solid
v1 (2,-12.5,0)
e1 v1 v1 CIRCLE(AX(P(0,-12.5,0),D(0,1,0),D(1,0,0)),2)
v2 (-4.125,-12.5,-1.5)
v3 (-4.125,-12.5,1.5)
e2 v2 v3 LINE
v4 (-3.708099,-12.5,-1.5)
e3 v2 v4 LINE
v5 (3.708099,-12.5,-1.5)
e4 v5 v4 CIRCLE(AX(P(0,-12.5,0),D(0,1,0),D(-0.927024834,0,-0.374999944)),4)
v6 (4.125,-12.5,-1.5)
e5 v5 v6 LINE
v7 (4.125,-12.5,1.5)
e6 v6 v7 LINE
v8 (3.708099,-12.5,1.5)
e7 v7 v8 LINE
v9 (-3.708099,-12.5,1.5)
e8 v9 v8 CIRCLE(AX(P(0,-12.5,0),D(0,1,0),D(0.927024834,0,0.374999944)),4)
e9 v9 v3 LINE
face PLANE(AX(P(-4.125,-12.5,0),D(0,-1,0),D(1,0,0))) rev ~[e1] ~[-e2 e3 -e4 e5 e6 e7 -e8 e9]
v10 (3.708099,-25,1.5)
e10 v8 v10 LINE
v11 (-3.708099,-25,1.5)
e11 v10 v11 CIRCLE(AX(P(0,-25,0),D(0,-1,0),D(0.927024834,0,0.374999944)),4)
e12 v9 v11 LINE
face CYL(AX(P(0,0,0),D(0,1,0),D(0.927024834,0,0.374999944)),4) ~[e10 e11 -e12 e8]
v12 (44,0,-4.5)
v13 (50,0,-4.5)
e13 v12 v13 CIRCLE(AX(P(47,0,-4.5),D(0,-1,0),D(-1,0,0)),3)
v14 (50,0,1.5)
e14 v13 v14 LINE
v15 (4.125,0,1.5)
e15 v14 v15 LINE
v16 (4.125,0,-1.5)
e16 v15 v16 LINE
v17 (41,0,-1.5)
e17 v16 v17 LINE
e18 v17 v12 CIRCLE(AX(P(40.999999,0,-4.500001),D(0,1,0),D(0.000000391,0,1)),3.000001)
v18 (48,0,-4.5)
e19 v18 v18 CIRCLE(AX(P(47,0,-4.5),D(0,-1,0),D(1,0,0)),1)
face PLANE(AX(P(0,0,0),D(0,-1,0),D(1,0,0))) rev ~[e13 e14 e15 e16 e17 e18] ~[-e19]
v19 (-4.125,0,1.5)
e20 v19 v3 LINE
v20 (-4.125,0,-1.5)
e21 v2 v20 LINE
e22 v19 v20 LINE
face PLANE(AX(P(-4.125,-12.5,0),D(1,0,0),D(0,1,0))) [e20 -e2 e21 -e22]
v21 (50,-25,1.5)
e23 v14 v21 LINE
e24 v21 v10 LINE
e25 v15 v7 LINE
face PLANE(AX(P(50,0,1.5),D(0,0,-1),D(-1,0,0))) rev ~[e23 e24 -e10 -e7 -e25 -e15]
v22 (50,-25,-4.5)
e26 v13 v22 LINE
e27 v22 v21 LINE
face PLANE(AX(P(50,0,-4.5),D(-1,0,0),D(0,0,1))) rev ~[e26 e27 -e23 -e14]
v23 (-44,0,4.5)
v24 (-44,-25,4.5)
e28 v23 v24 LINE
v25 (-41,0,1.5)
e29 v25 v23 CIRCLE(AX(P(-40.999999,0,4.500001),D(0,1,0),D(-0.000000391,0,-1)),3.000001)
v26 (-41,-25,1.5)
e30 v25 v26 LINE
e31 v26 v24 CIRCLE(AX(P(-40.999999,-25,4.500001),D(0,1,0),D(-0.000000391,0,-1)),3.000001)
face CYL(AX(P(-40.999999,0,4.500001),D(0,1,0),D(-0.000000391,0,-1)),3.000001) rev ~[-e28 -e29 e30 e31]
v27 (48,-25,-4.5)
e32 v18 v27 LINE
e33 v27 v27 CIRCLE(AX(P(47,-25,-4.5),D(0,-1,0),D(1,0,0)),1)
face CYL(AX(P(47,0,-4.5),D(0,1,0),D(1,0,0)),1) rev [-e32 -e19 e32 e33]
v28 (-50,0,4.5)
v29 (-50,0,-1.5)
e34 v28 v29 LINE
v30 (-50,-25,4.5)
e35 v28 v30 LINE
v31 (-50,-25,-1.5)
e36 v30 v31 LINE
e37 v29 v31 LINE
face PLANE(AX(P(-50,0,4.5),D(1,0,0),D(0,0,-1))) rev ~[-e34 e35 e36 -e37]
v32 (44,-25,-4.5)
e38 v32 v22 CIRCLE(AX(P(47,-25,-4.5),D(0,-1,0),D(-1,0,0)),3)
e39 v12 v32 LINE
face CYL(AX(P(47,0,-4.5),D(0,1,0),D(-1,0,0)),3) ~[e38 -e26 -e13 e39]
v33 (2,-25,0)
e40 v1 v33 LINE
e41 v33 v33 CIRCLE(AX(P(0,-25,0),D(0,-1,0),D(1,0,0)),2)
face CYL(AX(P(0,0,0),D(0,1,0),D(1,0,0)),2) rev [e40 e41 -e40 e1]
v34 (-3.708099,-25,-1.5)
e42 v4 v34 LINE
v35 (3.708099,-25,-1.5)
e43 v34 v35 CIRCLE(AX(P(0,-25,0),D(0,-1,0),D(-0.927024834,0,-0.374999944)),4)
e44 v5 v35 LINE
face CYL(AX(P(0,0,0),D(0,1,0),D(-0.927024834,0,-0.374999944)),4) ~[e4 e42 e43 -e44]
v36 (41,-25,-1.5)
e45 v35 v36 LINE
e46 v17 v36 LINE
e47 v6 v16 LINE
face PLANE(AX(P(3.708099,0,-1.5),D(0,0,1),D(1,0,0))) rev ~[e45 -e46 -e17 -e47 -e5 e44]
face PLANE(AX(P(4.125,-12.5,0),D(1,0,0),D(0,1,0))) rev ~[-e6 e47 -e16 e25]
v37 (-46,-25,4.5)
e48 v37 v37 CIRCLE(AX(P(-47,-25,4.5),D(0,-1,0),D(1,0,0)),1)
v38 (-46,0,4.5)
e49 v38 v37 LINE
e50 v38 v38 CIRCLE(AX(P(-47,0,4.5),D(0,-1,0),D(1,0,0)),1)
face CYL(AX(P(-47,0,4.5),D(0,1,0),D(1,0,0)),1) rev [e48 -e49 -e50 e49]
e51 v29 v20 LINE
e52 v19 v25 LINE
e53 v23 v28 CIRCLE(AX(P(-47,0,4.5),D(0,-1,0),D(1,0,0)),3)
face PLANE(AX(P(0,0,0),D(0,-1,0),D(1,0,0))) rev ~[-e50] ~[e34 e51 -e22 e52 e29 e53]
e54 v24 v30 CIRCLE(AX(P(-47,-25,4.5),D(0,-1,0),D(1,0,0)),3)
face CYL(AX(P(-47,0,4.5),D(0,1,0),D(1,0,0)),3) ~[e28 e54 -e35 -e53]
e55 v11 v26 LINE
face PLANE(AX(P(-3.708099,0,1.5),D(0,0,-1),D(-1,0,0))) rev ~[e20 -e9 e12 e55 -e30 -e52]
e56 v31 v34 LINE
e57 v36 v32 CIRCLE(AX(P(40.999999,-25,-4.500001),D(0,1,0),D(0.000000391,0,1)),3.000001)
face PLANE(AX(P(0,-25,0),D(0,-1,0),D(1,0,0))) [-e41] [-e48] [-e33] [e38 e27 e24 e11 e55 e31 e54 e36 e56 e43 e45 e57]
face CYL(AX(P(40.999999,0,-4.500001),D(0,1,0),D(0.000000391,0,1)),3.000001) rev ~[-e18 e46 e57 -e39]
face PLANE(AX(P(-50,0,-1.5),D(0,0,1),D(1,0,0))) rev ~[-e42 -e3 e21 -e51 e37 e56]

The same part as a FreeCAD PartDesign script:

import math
import FreeCAD as App
import Part
import Sketcher


def add_polygon(sketch, points):
    """Adds a closed chain of lines whose ends are joined by coincident constraints."""
    first, n = sketch.GeometryCount, len(points)
    for a, b in zip(points, points[1:] + points[:1]):
        sketch.addGeometry(Part.LineSegment(App.Vector(*a, 0), App.Vector(*b, 0)), False)
    for i in range(n):
        sketch.addConstraint(Sketcher.Constraint("Coincident", first + i, 2, first + (i + 1) % n, 1))

doc = App.newDocument("Part")
body = doc.addObject("PartDesign::Body", "Body")

# Sketch on XZ plane
sketch1 = body.newObject("Sketcher::SketchObject", "Sketch")
sketch1.AttachmentSupport = (doc.getObject("XZ_Plane"), [""])
sketch1.MapMode = "FlatFace"
sketch1.addGeometry([
    Part.LineSegment(App.Vector(-3.7, 1.5, 0), App.Vector(-41, 1.5, 0)),  # 0
    Part.ArcOfCircle(Part.Circle(App.Vector(-41, 4.5, 0), App.Vector(0, 0, 1), 3), math.radians(-180), math.radians(-90)),  # 1
    Part.ArcOfCircle(Part.Circle(App.Vector(-47, 4.5, 0), App.Vector(0, 0, 1), 3), math.radians(0), math.radians(180)),  # 2
    Part.LineSegment(App.Vector(-50, 4.5, 0), App.Vector(-50, -1.5, 0)),  # 3
    Part.LineSegment(App.Vector(-50, -1.5, 0), App.Vector(-3.7, -1.5, 0)),  # 4
    Part.ArcOfCircle(Part.Circle(App.Vector(0, 0, 0), App.Vector(0, 0, 1), 4), math.radians(-158), math.radians(-22)),  # 5
    Part.LineSegment(App.Vector(3.7, -1.5, 0), App.Vector(41, -1.5, 0)),  # 6
    Part.ArcOfCircle(Part.Circle(App.Vector(41, -4.5, 0), App.Vector(0, 0, 1), 3), math.radians(0), math.radians(90)),  # 7
    Part.ArcOfCircle(Part.Circle(App.Vector(47, -4.5, 0), App.Vector(0, 0, 1), 3), math.radians(180), math.radians(360)),  # 8
    Part.LineSegment(App.Vector(50, -4.5, 0), App.Vector(50, 1.5, 0)),  # 9
    Part.LineSegment(App.Vector(50, 1.5, 0), App.Vector(3.7, 1.5, 0)),  # 10
    Part.ArcOfCircle(Part.Circle(App.Vector(0, 0, 0), App.Vector(0, 0, 1), 4), math.radians(22), math.radians(158)),  # 11
    Part.Circle(App.Vector(47, -4.5, 0), App.Vector(0, 0, 1), 1),  # 12
    Part.Circle(App.Vector(-47, 4.5, 0), App.Vector(0, 0, 1), 1),  # 13
    Part.Circle(App.Vector(0, 0, 0), App.Vector(0, 0, 1), 2),  # 14
], False)
sketch1.addConstraint([
    Sketcher.Constraint("Tangent", 0, 2, 1, 2),
    Sketcher.Constraint("Tangent", 1, 1, 2, 1),
    Sketcher.Constraint("Tangent", 2, 2, 3, 1),
    Sketcher.Constraint("Coincident", 3, 2, 4, 1),
    Sketcher.Constraint("Coincident", 4, 2, 5, 1),
    Sketcher.Constraint("Coincident", 5, 2, 6, 1),
    Sketcher.Constraint("Tangent", 6, 2, 7, 2),
    Sketcher.Constraint("Tangent", 7, 1, 8, 1),
    Sketcher.Constraint("Tangent", 8, 2, 9, 1),
    Sketcher.Constraint("Coincident", 9, 2, 10, 1),
    Sketcher.Constraint("Coincident", 10, 2, 11, 1),
    Sketcher.Constraint("Coincident", 11, 2, 0, 1),
    Sketcher.Constraint("Horizontal", 0),
    Sketcher.Constraint("Vertical", 3),
    Sketcher.Constraint("Horizontal", 4),
    Sketcher.Constraint("Horizontal", 6),
    Sketcher.Constraint("Vertical", 9),
    Sketcher.Constraint("Horizontal", 10),
    Sketcher.Constraint("Coincident", 5, 3, -1, 1),
    Sketcher.Constraint("Coincident", 11, 3, -1, 1),
    Sketcher.Constraint("Coincident", 14, 3, -1, 1),
    Sketcher.Constraint("Coincident", 12, 3, 8, 3),
    Sketcher.Constraint("Coincident", 13, 3, 2, 3),
    Sketcher.Constraint("Equal", 1, 2),
    Sketcher.Constraint("Equal", 2, 7),
    Sketcher.Constraint("Equal", 7, 8),
    Sketcher.Constraint("Equal", 5, 11),
    Sketcher.Constraint("Equal", 12, 13),
    Sketcher.Constraint("Symmetric", 1, 3, 7, 3, -1, 1),
    Sketcher.Constraint("Horizontal", 1, 3, 2, 3),
    Sketcher.Constraint("Horizontal", 7, 3, 8, 3),
    Sketcher.Constraint("Horizontal", 4, 2, 5, 2),
    Sketcher.Constraint("Horizontal", 0, 2, 9, 2),
    Sketcher.Constraint("Diameter", 12, 2.0),
    Sketcher.Constraint("Diameter", 14, 4.0),
    Sketcher.Constraint("Radius", 1, 3.000001),
    Sketcher.Constraint("Radius", 5, 4.0),
    Sketcher.Constraint("DistanceY", 3, 2, 3, 1, 6.0),
    Sketcher.Constraint("DistanceX", 1, 3, -1, 1, 40.999999),
])
pad1 = body.newObject("PartDesign::Pad", "Pad")
pad1.Profile = sketch1
pad1.Length = 25

# Sketch on XY plane
sketch2 = body.newObject("Sketcher::SketchObject", "Sketch001")
sketch2.AttachmentSupport = (doc.getObject("XY_Plane"), [""])
sketch2.MapMode = "FlatFace"
add_polygon(sketch2, [(-4, 0), (-4, -12), (4, -12), (4, 0)])  # lines 0-3
sketch2.addConstraint([
    Sketcher.Constraint("Vertical", 0),
    Sketcher.Constraint("Horizontal", 1),
    Sketcher.Constraint("Vertical", 2),
    Sketcher.Constraint("Horizontal", 3),
    Sketcher.Constraint("Symmetric", 2, 2, 3, 2, -1, 1),
    Sketcher.Constraint("DistanceY", 0, 2, 0, 1, 12.5),
    Sketcher.Constraint("DistanceX", 1, 1, 1, 2, 8.25),
])
pocket1 = body.newObject("PartDesign::Pocket", "Pocket")
pocket1.Profile = sketch2
pocket1.Length = 25
pocket1.Midplane = True

doc.recompute()
